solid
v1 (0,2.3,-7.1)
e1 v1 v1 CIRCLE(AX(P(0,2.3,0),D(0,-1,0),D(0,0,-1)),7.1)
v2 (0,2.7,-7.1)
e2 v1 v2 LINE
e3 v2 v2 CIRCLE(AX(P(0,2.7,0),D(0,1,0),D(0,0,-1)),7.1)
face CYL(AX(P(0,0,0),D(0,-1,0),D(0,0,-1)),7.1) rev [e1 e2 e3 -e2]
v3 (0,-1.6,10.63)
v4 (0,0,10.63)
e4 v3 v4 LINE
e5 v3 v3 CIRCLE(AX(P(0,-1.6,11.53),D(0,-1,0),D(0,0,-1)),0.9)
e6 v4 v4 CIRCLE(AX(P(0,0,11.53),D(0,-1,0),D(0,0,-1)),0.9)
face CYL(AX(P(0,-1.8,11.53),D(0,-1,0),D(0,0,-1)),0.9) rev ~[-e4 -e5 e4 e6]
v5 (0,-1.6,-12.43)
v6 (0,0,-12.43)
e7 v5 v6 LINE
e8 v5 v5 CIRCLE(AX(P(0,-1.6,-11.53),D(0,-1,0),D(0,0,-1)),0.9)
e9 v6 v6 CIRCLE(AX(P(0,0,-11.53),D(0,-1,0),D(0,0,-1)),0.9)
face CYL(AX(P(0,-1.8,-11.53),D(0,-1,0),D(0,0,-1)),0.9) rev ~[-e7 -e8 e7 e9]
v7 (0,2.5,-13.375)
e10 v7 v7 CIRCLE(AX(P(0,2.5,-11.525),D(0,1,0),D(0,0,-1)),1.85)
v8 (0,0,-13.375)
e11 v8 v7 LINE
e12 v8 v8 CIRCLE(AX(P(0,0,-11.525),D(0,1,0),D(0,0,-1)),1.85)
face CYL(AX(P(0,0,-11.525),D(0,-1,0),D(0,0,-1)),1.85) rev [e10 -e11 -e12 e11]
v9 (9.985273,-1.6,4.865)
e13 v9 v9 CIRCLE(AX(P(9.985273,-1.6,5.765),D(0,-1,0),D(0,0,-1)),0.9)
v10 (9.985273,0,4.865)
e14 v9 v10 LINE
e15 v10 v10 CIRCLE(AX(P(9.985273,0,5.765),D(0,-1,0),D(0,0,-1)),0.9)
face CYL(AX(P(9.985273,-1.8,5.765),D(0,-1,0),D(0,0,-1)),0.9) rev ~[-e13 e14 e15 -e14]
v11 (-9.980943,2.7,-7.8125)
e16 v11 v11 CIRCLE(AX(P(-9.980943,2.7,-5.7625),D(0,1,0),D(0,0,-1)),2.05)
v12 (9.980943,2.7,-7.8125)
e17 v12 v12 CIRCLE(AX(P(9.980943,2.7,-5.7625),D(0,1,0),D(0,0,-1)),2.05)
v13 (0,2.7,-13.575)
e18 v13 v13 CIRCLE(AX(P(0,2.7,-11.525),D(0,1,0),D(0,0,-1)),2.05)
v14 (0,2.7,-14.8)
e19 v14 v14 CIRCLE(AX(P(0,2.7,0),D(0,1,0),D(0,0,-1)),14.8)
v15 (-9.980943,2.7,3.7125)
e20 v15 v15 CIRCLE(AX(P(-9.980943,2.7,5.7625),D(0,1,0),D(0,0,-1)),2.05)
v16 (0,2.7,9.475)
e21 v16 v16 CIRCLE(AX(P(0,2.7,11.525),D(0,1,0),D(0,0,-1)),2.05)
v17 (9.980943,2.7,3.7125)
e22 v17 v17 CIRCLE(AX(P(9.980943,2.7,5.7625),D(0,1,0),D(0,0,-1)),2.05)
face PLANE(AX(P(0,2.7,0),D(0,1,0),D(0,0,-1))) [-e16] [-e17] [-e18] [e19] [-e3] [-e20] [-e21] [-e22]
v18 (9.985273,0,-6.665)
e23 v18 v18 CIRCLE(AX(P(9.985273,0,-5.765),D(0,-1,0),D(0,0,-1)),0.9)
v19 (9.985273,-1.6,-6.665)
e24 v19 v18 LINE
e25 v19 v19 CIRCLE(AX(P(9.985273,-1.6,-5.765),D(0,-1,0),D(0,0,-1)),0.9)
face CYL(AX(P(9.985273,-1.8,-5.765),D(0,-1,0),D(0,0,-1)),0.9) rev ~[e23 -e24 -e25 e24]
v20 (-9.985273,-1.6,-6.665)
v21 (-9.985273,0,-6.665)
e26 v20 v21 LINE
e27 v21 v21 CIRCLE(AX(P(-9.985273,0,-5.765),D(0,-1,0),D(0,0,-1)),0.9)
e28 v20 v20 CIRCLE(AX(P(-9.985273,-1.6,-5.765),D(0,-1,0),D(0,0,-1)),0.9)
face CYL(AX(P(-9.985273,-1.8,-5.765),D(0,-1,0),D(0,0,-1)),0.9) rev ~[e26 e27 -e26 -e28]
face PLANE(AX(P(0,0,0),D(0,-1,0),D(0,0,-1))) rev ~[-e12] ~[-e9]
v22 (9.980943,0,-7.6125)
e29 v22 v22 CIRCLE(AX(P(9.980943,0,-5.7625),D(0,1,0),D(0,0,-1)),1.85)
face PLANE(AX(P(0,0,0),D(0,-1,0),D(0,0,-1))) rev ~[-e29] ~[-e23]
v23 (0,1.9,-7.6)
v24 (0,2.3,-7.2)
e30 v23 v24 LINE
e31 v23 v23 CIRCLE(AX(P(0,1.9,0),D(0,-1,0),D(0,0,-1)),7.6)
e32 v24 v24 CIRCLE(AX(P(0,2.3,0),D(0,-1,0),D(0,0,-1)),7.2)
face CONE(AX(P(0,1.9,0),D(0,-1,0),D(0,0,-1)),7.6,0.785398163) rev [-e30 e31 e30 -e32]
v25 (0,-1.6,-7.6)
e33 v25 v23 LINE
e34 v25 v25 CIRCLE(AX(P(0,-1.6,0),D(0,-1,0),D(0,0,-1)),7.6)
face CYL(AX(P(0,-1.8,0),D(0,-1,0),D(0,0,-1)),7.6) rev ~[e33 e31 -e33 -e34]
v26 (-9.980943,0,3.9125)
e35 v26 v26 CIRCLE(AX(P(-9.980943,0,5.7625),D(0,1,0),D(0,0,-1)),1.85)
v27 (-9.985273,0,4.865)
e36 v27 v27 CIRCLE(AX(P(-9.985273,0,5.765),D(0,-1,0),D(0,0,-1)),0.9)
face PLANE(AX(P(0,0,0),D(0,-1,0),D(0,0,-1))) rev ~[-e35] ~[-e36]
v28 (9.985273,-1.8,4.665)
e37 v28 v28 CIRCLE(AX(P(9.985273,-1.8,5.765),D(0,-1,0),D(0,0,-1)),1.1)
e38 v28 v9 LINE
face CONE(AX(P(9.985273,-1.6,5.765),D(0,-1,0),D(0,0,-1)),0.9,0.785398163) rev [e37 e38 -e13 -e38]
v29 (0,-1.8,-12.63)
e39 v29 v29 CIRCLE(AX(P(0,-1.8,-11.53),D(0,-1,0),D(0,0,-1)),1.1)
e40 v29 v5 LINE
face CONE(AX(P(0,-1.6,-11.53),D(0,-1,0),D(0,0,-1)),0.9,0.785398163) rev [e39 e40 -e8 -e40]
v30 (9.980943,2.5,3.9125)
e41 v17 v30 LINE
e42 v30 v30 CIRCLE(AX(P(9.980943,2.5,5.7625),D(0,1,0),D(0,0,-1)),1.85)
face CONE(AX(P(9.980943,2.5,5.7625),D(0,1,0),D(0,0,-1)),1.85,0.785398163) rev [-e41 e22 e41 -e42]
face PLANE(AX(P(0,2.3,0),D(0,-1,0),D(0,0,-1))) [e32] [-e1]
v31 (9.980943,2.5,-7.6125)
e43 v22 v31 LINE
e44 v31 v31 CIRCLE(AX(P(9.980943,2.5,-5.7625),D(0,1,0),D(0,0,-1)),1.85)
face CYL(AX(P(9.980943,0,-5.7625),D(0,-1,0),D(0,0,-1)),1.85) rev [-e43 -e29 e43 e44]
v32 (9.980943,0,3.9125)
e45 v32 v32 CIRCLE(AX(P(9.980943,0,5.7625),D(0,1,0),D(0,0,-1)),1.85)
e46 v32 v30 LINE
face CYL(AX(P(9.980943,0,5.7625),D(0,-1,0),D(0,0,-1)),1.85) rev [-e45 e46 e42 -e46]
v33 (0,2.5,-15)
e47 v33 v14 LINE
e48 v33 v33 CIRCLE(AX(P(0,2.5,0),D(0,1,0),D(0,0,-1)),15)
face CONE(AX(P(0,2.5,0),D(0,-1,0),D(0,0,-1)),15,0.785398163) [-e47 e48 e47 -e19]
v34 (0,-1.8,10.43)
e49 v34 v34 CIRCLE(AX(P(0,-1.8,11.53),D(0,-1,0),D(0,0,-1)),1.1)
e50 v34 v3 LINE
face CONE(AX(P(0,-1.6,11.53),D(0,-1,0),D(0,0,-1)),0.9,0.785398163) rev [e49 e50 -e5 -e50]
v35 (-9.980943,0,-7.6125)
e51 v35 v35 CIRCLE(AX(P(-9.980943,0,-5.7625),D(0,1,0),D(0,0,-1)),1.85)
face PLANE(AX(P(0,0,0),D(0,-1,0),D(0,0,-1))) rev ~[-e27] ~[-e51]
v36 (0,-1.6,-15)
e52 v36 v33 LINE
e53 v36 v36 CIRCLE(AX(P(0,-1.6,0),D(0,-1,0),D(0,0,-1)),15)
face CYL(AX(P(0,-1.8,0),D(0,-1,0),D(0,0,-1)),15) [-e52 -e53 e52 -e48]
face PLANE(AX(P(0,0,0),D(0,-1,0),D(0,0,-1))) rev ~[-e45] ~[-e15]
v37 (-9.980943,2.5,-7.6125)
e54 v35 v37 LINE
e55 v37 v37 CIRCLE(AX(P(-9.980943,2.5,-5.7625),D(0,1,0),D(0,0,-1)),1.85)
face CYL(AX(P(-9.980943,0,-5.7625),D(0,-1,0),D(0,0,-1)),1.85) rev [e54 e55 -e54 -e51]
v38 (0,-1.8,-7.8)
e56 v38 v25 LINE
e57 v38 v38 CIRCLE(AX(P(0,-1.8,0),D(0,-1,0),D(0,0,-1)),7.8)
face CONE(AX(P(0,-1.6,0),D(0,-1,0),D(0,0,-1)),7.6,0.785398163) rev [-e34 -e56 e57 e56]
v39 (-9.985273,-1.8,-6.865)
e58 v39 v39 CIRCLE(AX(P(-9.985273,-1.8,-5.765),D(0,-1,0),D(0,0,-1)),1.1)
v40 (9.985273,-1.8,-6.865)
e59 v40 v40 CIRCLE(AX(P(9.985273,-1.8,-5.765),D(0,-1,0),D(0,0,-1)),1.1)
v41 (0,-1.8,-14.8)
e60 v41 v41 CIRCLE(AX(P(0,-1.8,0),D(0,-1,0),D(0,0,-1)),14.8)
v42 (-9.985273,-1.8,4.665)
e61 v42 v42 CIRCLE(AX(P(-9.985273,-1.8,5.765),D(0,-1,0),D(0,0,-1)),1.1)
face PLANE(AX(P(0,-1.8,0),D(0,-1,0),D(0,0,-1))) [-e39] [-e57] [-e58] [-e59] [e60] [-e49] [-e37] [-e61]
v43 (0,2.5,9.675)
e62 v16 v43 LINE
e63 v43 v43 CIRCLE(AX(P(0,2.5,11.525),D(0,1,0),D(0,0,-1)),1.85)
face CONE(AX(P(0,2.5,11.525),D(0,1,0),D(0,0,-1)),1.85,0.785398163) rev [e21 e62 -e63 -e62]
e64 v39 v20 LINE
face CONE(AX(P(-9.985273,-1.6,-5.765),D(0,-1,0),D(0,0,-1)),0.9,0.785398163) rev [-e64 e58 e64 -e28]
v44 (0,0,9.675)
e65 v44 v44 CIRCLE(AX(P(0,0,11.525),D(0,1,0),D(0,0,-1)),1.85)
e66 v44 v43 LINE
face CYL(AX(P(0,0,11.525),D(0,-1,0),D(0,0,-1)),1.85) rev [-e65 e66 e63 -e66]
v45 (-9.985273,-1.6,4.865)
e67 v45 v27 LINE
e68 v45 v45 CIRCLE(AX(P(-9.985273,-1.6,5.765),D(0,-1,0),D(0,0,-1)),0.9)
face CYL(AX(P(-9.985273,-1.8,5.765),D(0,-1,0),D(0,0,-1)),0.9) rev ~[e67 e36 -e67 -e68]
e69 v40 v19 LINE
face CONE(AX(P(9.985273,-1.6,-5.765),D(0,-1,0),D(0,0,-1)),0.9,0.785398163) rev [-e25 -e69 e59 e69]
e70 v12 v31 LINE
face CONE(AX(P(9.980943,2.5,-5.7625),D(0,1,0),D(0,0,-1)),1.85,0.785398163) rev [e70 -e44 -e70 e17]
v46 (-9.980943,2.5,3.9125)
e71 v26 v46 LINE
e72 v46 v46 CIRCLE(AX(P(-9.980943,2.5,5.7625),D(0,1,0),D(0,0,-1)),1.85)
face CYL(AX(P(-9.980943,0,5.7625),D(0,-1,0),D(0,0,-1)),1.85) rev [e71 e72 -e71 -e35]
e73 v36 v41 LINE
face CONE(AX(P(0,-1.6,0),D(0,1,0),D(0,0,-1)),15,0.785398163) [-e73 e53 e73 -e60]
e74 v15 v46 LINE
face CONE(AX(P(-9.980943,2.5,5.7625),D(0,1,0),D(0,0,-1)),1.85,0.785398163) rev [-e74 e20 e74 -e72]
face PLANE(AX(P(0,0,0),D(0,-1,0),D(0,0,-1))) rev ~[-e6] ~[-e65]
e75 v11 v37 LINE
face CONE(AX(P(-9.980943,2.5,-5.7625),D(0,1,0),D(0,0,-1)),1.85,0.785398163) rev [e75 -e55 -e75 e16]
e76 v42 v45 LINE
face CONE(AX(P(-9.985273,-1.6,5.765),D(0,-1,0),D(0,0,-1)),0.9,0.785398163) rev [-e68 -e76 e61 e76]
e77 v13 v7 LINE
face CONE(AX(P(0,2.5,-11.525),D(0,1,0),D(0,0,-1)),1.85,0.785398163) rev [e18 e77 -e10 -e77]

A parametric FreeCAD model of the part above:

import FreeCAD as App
import Part
import Sketcher

V = App.Vector


def edges_at(feature, points):
    """Names of the edges that pass closest to the given points."""
    edges = feature.Shape.Edges
    near = lambda p: min(range(len(edges)), key=lambda i: edges[i].distToShape(Part.Vertex(*p))[0])
    return sorted({f"Edge{near(p) + 1}" for p in points})

doc = App.newDocument("Part")
params = doc.addObject("Spreadsheet::Sheet", "Params")
for row, (alias, value) in enumerate([
    ("sketch1_diameter", "30 mm"),
    ("sketch1_diameter2", "3.7 mm"),
    ("sketch1_diameter3", "14.2 mm"),
    ("pad1_length", "2.7 mm"),
    ("sketch2_diameter", "30 mm"),
    ("sketch2_diameter2", "1.8 mm"),
    ("sketch2_diameter3", "14.2 mm"),
    ("pad2_length", "1.8 mm"),
    ("sketch3_diameter", "15.2 mm"),
    ("pocket1_length", "4.1 mm"),
    ("chamfer_size", "0.2 mm"),
    ("chamfer2_size", "0.4 mm"),
], start=1):
    params.set(f"A{row}", alias)
    params.set(f"B{row}", "=" + value)
    params.setAlias(f"B{row}", alias)

body = doc.addObject("PartDesign::Body", "Body")

# Sketch on XZ plane
sketch1 = body.newObject("Sketcher::SketchObject", "Sketch")
sketch1.AttachmentSupport = (doc.getObject("XZ_Plane"), [""])
sketch1.MapMode = "FlatFace"
sketch1.addGeometry(Part.Circle(V(0, 0, 0), V(0, 0, 1), 15), False)
sketch1.addGeometry(Part.Circle(V(10, 5.8, 0), V(0, 0, 1), 1.9), False)
sketch1.addGeometry(Part.Circle(V(0, 11.5, 0), V(0, 0, 1), 1.9), False)
sketch1.addGeometry(Part.Circle(V(0, 0, 0), V(0, 0, 1), 7.1), False)
sketch1.addGeometry(Part.Circle(V(10, -5.8, 0), V(0, 0, 1), 1.9), False)
sketch1.addGeometry(Part.Circle(V(-10, 5.8, 0), V(0, 0, 1), 1.9), False)
sketch1.addGeometry(Part.Circle(V(0, -11.5, 0), V(0, 0, 1), 1.9), False)
sketch1.addGeometry(Part.Circle(V(-10, -5.8, 0), V(0, 0, 1), 1.9), False)
sketch1.addConstraint(Sketcher.Constraint("Coincident", 0, 3, -1, 1))
sketch1.addConstraint(Sketcher.Constraint("Coincident", 3, 3, -1, 1))
sketch1.addConstraint(Sketcher.Constraint("Equal", 1, 2))
sketch1.addConstraint(Sketcher.Constraint("Equal", 2, 4))
sketch1.addConstraint(Sketcher.Constraint("Equal", 4, 5))
sketch1.addConstraint(Sketcher.Constraint("Equal", 5, 6))
sketch1.addConstraint(Sketcher.Constraint("Equal", 6, 7))
sketch1.addConstraint(Sketcher.Constraint("Symmetric", 4, 3, 5, 3, -1, 1))
sketch1.addConstraint(Sketcher.Constraint("Symmetric", 2, 3, 6, 3, -1, 1))
sketch1.addConstraint(Sketcher.Constraint("Symmetric", 1, 3, 7, 3, -1, 1))
sketch1.addConstraint(Sketcher.Constraint("Symmetric", 1, 3, 5, 3, -2))
sketch1.addConstraint(Sketcher.Constraint("PointOnObject", 2, 3, -2))
sketch1.addConstraint(Sketcher.Constraint("Diameter", 0, 30.0))
sketch1.addConstraint(Sketcher.Constraint("Diameter", 1, 3.7))
sketch1.addConstraint(Sketcher.Constraint("Diameter", 3, 14.2))
sketch1.addConstraint(Sketcher.Constraint("DistanceY", -1, 1, 2, 3, 11.525))
sketch1.addConstraint(Sketcher.Constraint("DistanceY", 4, 3, 1, 3, 11.525))
sketch1.addConstraint(Sketcher.Constraint("DistanceX", -1, 1, 1, 3, 9.980943))
sketch1.setExpression("Constraints[12]", "Params.sketch1_diameter")
sketch1.setExpression("Constraints[13]", "Params.sketch1_diameter2")
sketch1.setExpression("Constraints[14]", "Params.sketch1_diameter3")
pad1 = body.newObject("PartDesign::Pad", "Pad")
pad1.Profile = sketch1
pad1.setExpression("Length", "Params.pad1_length")
pad1.Reversed = True

# Sketch on XZ plane
sketch2 = body.newObject("Sketcher::SketchObject", "Sketch001")
sketch2.AttachmentSupport = (doc.getObject("XZ_Plane"), [""])
sketch2.MapMode = "FlatFace"
sketch2.AttachmentOffset = App.Placement(V(0, 0, 1.8), App.Rotation())
sketch2.addGeometry(Part.Circle(V(0, 0, 0), V(0, 0, 1), 15), False)
sketch2.addGeometry(Part.Circle(V(-10, 5.8, 0), V(0, 0, 1), 0.9), False)
sketch2.addGeometry(Part.Circle(V(0, 11.5, 0), V(0, 0, 1), 0.9), False)
sketch2.addGeometry(Part.Circle(V(-10, -5.8, 0), V(0, 0, 1), 0.9), False)
sketch2.addGeometry(Part.Circle(V(10, 5.8, 0), V(0, 0, 1), 0.9), False)
sketch2.addGeometry(Part.Circle(V(0, 0, 0), V(0, 0, 1), 7.1), False)
sketch2.addGeometry(Part.Circle(V(0, -11.5, 0), V(0, 0, 1), 0.9), False)
sketch2.addGeometry(Part.Circle(V(10, -5.8, 0), V(0, 0, 1), 0.9), False)
sketch2.addConstraint(Sketcher.Constraint("Coincident", 0, 3, -1, 1))
sketch2.addConstraint(Sketcher.Constraint("Coincident", 5, 3, -1, 1))
sketch2.addConstraint(Sketcher.Constraint("Equal", 1, 2))
sketch2.addConstraint(Sketcher.Constraint("Equal", 2, 3))
sketch2.addConstraint(Sketcher.Constraint("Equal", 3, 4))
sketch2.addConstraint(Sketcher.Constraint("Equal", 4, 6))
sketch2.addConstraint(Sketcher.Constraint("Equal", 6, 7))
sketch2.addConstraint(Sketcher.Constraint("Symmetric", 3, 3, 4, 3, -1, 1))
sketch2.addConstraint(Sketcher.Constraint("Symmetric", 2, 3, 6, 3, -1, 1))
sketch2.addConstraint(Sketcher.Constraint("Symmetric", 1, 3, 7, 3, -1, 1))
sketch2.addConstraint(Sketcher.Constraint("Symmetric", 1, 3, 4, 3, -2))
sketch2.addConstraint(Sketcher.Constraint("PointOnObject", 2, 3, -2))
sketch2.addConstraint(Sketcher.Constraint("Diameter", 0, 30.0))
sketch2.addConstraint(Sketcher.Constraint("Diameter", 1, 1.8))
sketch2.addConstraint(Sketcher.Constraint("Diameter", 5, 14.2))
sketch2.addConstraint(Sketcher.Constraint("DistanceY", -1, 1, 2, 3, 11.53))
sketch2.addConstraint(Sketcher.Constraint("DistanceY", 3, 3, 1, 3, 11.53))
sketch2.addConstraint(Sketcher.Constraint("DistanceX", 1, 3, -1, 1, 9.985273))
sketch2.setExpression("Constraints[12]", "Params.sketch2_diameter")
sketch2.setExpression("Constraints[13]", "Params.sketch2_diameter2")
sketch2.setExpression("Constraints[14]", "Params.sketch2_diameter3")
pad2 = body.newObject("PartDesign::Pad", "Pad001")
pad2.Profile = sketch2
pad2.setExpression("Length", "Params.pad2_length")
pad2.Reversed = True

# Sketch on XZ plane
sketch3 = body.newObject("Sketcher::SketchObject", "Sketch002")
sketch3.AttachmentSupport = (doc.getObject("XZ_Plane"), [""])
sketch3.MapMode = "FlatFace"
sketch3.AttachmentOffset = App.Placement(V(0, 0, 1.8), App.Rotation())
sketch3.addGeometry(Part.Circle(V(0, 0, 0), V(0, 0, 1), 8), False)
sketch3.addConstraint(Sketcher.Constraint("Coincident", 0, 3, -1, 1))
sketch3.addConstraint(Sketcher.Constraint("Diameter", 0, 15.2))
sketch3.setExpression("Constraints[1]", "Params.sketch3_diameter")
pocket1 = body.newObject("PartDesign::Pocket", "Pocket")
pocket1.Profile = sketch3
pocket1.setExpression("Length", "Params.pocket1_length")
doc.recompute()

chamfer = body.newObject("PartDesign::Chamfer", "Chamfer")
chamfer.Base = (pocket1, edges_at(pocket1, [
    (9.981, 2.7, -3.913),
    (9.981, 2.7, 7.612),
    (0, 2.7, 13.375),
    (-9.981, 2.7, 7.612),
    (-9.981, 2.7, -3.913),
    (0, -1.8, 15),
    (0, -1.8, -10.63),
    (-9.985, -1.8, -4.865),
    (-9.985, -1.8, 6.665),
    (0, -1.8, 12.43),
    (9.985, -1.8, 6.665),
    (9.985, -1.8, -4.865),
    (0, 2.7, 15),
    (0, -1.8, 7.6),
    (0, 2.7, -9.675),
]))
chamfer.setExpression("Size", "Params.chamfer_size")
doc.recompute()

chamfer2 = body.newObject("PartDesign::Chamfer", "Chamfer001")
chamfer2.Base = (chamfer, edges_at(chamfer, [(0, 2.3, 7.6)]))
chamfer2.setExpression("Size", "Params.chamfer2_size")

doc.recompute()
